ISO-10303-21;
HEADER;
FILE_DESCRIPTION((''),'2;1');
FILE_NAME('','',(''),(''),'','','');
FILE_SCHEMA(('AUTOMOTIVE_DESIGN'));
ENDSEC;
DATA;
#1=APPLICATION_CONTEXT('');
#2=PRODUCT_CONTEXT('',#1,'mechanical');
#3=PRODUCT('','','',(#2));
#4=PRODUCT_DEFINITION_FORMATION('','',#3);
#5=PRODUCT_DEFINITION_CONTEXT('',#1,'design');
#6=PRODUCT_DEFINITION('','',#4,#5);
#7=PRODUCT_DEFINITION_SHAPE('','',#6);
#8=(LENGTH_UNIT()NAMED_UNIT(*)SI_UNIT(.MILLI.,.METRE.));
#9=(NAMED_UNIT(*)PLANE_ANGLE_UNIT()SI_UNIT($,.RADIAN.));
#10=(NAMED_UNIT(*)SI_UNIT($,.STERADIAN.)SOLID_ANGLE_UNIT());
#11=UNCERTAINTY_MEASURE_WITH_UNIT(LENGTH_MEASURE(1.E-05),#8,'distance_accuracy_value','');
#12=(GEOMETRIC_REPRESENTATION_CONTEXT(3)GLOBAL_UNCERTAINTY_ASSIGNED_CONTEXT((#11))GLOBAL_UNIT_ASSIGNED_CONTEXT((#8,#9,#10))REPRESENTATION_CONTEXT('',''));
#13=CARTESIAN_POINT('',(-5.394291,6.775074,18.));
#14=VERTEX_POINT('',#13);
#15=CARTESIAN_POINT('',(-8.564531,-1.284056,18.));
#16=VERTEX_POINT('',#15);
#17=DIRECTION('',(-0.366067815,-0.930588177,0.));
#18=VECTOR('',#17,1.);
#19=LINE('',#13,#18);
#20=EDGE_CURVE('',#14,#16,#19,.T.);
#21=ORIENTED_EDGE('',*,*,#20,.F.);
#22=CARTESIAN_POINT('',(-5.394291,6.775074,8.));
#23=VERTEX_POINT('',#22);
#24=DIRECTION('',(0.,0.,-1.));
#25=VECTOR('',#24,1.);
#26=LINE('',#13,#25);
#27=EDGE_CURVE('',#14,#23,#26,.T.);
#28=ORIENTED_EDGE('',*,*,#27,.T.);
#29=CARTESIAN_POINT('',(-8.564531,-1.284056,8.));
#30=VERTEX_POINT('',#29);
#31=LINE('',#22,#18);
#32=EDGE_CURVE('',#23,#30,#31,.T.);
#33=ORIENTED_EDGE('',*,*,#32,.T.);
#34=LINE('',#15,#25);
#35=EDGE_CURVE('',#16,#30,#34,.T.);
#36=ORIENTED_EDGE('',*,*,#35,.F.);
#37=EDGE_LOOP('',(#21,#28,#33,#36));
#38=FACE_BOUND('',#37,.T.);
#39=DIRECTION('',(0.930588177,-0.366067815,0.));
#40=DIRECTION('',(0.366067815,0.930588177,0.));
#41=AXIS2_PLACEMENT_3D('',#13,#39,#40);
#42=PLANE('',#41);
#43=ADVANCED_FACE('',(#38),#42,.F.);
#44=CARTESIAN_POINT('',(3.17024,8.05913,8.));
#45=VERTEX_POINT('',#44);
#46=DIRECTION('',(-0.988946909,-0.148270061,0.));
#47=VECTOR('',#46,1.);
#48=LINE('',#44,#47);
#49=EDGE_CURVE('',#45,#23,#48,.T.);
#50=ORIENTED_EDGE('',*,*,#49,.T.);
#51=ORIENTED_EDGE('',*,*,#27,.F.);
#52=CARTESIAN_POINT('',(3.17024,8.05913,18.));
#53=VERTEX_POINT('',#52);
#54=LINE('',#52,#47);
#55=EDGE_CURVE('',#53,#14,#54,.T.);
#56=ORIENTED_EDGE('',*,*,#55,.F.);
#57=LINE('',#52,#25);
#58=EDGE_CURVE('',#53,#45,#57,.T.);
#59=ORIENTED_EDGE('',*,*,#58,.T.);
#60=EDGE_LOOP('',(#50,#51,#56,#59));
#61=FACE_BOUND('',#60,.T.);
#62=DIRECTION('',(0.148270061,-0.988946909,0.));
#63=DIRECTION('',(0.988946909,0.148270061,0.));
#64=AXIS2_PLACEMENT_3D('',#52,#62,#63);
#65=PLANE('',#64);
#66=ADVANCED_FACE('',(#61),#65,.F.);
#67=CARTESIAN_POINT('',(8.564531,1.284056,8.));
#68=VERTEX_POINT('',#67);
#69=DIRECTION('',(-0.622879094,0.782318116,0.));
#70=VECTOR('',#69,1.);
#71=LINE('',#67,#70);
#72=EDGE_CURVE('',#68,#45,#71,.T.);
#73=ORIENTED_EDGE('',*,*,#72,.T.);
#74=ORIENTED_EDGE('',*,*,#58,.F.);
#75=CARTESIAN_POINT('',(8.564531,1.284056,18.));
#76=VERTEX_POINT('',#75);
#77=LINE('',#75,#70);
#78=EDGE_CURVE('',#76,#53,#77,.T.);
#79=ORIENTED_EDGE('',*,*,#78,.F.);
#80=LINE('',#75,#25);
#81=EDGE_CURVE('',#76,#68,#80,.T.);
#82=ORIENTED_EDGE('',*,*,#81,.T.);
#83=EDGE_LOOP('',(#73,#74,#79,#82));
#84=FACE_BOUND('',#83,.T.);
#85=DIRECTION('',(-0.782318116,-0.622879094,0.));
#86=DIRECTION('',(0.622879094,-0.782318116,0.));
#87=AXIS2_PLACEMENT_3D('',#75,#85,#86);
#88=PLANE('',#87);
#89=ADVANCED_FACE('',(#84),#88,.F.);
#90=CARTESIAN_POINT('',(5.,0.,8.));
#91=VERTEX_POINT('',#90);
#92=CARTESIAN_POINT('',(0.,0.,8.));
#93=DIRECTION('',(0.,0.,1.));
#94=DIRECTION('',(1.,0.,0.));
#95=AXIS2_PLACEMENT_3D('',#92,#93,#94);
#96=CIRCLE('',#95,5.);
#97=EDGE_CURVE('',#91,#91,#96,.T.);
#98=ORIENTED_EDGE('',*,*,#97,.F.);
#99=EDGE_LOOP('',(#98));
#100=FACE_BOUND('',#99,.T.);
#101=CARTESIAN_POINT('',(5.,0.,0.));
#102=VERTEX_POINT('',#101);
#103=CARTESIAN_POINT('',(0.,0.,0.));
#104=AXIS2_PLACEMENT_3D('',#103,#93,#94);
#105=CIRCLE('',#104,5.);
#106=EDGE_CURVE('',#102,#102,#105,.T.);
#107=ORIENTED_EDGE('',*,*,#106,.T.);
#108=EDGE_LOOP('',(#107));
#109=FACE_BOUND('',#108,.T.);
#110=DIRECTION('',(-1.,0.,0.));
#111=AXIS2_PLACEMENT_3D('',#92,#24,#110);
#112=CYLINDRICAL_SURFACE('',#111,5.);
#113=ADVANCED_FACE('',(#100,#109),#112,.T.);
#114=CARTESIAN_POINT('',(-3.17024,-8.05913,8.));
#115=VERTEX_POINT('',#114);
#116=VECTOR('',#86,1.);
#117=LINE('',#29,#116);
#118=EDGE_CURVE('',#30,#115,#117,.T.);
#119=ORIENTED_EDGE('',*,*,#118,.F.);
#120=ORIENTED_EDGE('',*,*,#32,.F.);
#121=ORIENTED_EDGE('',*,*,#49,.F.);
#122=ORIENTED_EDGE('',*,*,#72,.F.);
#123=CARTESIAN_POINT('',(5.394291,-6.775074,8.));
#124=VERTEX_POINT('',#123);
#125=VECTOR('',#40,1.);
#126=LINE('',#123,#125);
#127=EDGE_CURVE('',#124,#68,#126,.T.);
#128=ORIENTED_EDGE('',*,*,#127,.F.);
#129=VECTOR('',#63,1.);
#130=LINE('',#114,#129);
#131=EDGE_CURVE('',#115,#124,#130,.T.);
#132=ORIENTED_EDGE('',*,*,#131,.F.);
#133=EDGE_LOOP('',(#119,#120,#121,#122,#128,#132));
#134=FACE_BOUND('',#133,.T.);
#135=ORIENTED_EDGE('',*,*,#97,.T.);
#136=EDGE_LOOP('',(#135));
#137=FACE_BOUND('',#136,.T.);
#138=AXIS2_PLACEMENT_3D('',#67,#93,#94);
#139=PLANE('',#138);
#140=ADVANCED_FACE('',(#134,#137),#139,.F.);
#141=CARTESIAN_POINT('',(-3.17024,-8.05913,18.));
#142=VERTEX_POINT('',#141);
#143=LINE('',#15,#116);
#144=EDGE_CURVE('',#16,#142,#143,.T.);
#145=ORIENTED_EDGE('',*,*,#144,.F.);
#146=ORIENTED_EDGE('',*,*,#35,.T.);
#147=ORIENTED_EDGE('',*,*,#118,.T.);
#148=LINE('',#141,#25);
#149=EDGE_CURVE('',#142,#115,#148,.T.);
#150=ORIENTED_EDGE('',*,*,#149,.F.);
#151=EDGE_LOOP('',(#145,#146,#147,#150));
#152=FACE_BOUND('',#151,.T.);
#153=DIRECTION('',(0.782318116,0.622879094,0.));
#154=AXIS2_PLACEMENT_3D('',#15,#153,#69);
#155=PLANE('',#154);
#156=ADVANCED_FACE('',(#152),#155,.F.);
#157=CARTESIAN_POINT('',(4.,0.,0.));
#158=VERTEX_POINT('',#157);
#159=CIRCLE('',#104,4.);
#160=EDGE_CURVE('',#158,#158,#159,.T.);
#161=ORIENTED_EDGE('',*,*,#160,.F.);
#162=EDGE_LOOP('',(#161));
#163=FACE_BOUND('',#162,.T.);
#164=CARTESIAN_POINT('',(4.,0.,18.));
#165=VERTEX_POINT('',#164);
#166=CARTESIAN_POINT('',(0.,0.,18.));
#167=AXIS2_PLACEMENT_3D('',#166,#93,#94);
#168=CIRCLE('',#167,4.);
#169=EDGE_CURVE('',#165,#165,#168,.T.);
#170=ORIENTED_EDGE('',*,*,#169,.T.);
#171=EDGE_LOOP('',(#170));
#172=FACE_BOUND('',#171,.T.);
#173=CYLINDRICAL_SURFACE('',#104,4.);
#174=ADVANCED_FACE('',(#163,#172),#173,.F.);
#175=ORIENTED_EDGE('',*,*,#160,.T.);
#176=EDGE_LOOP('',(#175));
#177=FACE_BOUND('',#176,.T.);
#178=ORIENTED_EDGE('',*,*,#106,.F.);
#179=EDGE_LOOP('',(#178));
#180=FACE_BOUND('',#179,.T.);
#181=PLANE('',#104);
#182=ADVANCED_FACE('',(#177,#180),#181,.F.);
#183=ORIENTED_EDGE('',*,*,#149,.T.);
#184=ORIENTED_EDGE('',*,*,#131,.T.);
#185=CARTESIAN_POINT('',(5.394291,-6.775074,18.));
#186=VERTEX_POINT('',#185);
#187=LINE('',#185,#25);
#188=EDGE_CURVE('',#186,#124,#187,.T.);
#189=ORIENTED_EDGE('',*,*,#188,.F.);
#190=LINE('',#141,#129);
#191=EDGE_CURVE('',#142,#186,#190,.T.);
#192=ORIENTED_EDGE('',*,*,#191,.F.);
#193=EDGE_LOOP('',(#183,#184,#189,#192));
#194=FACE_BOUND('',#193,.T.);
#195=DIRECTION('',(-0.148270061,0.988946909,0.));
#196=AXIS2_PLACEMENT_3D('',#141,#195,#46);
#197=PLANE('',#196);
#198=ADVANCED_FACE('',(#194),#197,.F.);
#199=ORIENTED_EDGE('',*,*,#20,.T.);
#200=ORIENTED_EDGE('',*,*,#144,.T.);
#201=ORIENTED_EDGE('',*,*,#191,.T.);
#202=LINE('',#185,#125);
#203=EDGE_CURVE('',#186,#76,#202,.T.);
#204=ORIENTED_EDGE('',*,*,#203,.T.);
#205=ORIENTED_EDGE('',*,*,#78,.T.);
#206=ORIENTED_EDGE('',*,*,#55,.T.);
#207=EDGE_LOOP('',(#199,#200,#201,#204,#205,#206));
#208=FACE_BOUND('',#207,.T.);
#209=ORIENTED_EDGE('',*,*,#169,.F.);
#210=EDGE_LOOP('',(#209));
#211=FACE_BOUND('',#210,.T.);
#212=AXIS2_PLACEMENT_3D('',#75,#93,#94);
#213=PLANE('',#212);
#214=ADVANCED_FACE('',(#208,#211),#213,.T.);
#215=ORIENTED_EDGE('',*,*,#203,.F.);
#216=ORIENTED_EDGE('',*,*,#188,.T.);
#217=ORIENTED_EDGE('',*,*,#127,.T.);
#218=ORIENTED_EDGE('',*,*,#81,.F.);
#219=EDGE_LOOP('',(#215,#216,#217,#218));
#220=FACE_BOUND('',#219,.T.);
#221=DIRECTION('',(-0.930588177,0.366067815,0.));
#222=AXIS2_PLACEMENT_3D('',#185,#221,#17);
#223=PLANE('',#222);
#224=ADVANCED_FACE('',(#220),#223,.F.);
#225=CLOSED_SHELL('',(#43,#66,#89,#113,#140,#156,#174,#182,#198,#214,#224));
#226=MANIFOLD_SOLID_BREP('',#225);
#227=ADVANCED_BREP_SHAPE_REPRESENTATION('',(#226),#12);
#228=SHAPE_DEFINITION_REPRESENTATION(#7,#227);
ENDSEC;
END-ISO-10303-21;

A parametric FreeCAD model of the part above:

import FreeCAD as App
import Part
import Sketcher

V = App.Vector
Q = App.Units.Quantity

doc = App.newDocument("Part")
body = doc.addObject("PartDesign::Body", "Body")

# Sketch on XY plane
sketch1 = body.newObject("Sketcher::SketchObject", "Sketch")
sketch1.AttachmentSupport = (doc.getObject("XY_Plane"), [""])
sketch1.MapMode = "FlatFace"
sketch1.addGeometry(Part.Circle(V(0, 0, 0), V(0, 0, 1), 5), False)
sketch1.addConstraint(Sketcher.Constraint("Coincident", 0, 3, -1, 1))
sketch1.addConstraint(Sketcher.Constraint("Diameter", 0, Q("10 mm")))
pad1 = body.newObject("PartDesign::Pad", "Pad")
pad1.Profile = sketch1
pad1.Length = 8

# Sketch on XY plane
sketch2 = body.newObject("Sketcher::SketchObject", "Sketch001")
sketch2.AttachmentSupport = (doc.getObject("XY_Plane"), [""])
sketch2.MapMode = "FlatFace"
sketch2.AttachmentOffset = App.Placement(V(0, 0, 8), App.Rotation())
sketch2.addGeometry(Part.LineSegment(V(8.564531, 1.284056, 0), V(3.17024, 8.05913, 0)), False)
sketch2.addGeometry(Part.LineSegment(V(3.17024, 8.05913, 0), V(-5.394291, 6.775074, 0)), False)
sketch2.addGeometry(Part.LineSegment(V(-5.394291, 6.775074, 0), V(-8.564531, -1.284056, 0)), False)
sketch2.addGeometry(Part.LineSegment(V(-8.564531, -1.284056, 0), V(-3.17024, -8.05913, 0)), False)
sketch2.addGeometry(Part.LineSegment(V(-3.17024, -8.05913, 0), V(5.394291, -6.775074, 0)), False)
sketch2.addGeometry(Part.LineSegment(V(5.394291, -6.775074, 0), V(8.564531, 1.284056, 0)), False)
sketch2.addConstraint(Sketcher.Constraint("Coincident", 0, 2, 1, 1))
sketch2.addConstraint(Sketcher.Constraint("Coincident", 1, 2, 2, 1))
sketch2.addConstraint(Sketcher.Constraint("Coincident", 2, 2, 3, 1))
sketch2.addConstraint(Sketcher.Constraint("Coincident", 3, 2, 4, 1))
sketch2.addConstraint(Sketcher.Constraint("Coincident", 4, 2, 5, 1))
sketch2.addConstraint(Sketcher.Constraint("Coincident", 5, 2, 0, 1))
sketch2.addConstraint(Sketcher.Constraint("Symmetric", 0, 2, 3, 2, -1, 1))
sketch2.addConstraint(Sketcher.Constraint("Symmetric", 1, 2, 4, 2, -1, 1))
sketch2.addConstraint(Sketcher.Constraint("Symmetric", 2, 2, 5, 2, -1, 1))
sketch2.addConstraint(Sketcher.Constraint("Equal", 0, 1))
sketch2.addConstraint(Sketcher.Constraint("Equal", 1, 2))
sketch2.addConstraint(Sketcher.Constraint("DistanceX", -1, 1, 0, 2, Q("3.17024 mm")))
sketch2.addConstraint(Sketcher.Constraint("DistanceY", -1, 1, 0, 2, Q("8.05913 mm")))
sketch2.addConstraint(Sketcher.Constraint("DistanceX", 1, 2, -1, 1, Q("5.394291 mm")))
sketch2.addConstraint(Sketcher.Constraint("DistanceX", 2, 2, -1, 1, Q("8.564531 mm")))
pad2 = body.newObject("PartDesign::Pad", "Pad001")
pad2.Profile = sketch2
pad2.Length = 10

# Sketch on XY plane
sketch3 = body.newObject("Sketcher::SketchObject", "Sketch002")
sketch3.AttachmentSupport = (doc.getObject("XY_Plane"), [""])
sketch3.MapMode = "FlatFace"
sketch3.AttachmentOffset = App.Placement(V(0, 0, 18), App.Rotation())
sketch3.addGeometry(Part.Circle(V(0, 0, 0), V(0, 0, 1), 4), False)
sketch3.addConstraint(Sketcher.Constraint("Coincident", 0, 3, -1, 1))
sketch3.addConstraint(Sketcher.Constraint("Diameter", 0, Q("8 mm")))
pocket1 = body.newObject("PartDesign::Pocket", "Pocket")
pocket1.Profile = sketch3
pocket1.Type = "ThroughAll"

doc.recompute()
